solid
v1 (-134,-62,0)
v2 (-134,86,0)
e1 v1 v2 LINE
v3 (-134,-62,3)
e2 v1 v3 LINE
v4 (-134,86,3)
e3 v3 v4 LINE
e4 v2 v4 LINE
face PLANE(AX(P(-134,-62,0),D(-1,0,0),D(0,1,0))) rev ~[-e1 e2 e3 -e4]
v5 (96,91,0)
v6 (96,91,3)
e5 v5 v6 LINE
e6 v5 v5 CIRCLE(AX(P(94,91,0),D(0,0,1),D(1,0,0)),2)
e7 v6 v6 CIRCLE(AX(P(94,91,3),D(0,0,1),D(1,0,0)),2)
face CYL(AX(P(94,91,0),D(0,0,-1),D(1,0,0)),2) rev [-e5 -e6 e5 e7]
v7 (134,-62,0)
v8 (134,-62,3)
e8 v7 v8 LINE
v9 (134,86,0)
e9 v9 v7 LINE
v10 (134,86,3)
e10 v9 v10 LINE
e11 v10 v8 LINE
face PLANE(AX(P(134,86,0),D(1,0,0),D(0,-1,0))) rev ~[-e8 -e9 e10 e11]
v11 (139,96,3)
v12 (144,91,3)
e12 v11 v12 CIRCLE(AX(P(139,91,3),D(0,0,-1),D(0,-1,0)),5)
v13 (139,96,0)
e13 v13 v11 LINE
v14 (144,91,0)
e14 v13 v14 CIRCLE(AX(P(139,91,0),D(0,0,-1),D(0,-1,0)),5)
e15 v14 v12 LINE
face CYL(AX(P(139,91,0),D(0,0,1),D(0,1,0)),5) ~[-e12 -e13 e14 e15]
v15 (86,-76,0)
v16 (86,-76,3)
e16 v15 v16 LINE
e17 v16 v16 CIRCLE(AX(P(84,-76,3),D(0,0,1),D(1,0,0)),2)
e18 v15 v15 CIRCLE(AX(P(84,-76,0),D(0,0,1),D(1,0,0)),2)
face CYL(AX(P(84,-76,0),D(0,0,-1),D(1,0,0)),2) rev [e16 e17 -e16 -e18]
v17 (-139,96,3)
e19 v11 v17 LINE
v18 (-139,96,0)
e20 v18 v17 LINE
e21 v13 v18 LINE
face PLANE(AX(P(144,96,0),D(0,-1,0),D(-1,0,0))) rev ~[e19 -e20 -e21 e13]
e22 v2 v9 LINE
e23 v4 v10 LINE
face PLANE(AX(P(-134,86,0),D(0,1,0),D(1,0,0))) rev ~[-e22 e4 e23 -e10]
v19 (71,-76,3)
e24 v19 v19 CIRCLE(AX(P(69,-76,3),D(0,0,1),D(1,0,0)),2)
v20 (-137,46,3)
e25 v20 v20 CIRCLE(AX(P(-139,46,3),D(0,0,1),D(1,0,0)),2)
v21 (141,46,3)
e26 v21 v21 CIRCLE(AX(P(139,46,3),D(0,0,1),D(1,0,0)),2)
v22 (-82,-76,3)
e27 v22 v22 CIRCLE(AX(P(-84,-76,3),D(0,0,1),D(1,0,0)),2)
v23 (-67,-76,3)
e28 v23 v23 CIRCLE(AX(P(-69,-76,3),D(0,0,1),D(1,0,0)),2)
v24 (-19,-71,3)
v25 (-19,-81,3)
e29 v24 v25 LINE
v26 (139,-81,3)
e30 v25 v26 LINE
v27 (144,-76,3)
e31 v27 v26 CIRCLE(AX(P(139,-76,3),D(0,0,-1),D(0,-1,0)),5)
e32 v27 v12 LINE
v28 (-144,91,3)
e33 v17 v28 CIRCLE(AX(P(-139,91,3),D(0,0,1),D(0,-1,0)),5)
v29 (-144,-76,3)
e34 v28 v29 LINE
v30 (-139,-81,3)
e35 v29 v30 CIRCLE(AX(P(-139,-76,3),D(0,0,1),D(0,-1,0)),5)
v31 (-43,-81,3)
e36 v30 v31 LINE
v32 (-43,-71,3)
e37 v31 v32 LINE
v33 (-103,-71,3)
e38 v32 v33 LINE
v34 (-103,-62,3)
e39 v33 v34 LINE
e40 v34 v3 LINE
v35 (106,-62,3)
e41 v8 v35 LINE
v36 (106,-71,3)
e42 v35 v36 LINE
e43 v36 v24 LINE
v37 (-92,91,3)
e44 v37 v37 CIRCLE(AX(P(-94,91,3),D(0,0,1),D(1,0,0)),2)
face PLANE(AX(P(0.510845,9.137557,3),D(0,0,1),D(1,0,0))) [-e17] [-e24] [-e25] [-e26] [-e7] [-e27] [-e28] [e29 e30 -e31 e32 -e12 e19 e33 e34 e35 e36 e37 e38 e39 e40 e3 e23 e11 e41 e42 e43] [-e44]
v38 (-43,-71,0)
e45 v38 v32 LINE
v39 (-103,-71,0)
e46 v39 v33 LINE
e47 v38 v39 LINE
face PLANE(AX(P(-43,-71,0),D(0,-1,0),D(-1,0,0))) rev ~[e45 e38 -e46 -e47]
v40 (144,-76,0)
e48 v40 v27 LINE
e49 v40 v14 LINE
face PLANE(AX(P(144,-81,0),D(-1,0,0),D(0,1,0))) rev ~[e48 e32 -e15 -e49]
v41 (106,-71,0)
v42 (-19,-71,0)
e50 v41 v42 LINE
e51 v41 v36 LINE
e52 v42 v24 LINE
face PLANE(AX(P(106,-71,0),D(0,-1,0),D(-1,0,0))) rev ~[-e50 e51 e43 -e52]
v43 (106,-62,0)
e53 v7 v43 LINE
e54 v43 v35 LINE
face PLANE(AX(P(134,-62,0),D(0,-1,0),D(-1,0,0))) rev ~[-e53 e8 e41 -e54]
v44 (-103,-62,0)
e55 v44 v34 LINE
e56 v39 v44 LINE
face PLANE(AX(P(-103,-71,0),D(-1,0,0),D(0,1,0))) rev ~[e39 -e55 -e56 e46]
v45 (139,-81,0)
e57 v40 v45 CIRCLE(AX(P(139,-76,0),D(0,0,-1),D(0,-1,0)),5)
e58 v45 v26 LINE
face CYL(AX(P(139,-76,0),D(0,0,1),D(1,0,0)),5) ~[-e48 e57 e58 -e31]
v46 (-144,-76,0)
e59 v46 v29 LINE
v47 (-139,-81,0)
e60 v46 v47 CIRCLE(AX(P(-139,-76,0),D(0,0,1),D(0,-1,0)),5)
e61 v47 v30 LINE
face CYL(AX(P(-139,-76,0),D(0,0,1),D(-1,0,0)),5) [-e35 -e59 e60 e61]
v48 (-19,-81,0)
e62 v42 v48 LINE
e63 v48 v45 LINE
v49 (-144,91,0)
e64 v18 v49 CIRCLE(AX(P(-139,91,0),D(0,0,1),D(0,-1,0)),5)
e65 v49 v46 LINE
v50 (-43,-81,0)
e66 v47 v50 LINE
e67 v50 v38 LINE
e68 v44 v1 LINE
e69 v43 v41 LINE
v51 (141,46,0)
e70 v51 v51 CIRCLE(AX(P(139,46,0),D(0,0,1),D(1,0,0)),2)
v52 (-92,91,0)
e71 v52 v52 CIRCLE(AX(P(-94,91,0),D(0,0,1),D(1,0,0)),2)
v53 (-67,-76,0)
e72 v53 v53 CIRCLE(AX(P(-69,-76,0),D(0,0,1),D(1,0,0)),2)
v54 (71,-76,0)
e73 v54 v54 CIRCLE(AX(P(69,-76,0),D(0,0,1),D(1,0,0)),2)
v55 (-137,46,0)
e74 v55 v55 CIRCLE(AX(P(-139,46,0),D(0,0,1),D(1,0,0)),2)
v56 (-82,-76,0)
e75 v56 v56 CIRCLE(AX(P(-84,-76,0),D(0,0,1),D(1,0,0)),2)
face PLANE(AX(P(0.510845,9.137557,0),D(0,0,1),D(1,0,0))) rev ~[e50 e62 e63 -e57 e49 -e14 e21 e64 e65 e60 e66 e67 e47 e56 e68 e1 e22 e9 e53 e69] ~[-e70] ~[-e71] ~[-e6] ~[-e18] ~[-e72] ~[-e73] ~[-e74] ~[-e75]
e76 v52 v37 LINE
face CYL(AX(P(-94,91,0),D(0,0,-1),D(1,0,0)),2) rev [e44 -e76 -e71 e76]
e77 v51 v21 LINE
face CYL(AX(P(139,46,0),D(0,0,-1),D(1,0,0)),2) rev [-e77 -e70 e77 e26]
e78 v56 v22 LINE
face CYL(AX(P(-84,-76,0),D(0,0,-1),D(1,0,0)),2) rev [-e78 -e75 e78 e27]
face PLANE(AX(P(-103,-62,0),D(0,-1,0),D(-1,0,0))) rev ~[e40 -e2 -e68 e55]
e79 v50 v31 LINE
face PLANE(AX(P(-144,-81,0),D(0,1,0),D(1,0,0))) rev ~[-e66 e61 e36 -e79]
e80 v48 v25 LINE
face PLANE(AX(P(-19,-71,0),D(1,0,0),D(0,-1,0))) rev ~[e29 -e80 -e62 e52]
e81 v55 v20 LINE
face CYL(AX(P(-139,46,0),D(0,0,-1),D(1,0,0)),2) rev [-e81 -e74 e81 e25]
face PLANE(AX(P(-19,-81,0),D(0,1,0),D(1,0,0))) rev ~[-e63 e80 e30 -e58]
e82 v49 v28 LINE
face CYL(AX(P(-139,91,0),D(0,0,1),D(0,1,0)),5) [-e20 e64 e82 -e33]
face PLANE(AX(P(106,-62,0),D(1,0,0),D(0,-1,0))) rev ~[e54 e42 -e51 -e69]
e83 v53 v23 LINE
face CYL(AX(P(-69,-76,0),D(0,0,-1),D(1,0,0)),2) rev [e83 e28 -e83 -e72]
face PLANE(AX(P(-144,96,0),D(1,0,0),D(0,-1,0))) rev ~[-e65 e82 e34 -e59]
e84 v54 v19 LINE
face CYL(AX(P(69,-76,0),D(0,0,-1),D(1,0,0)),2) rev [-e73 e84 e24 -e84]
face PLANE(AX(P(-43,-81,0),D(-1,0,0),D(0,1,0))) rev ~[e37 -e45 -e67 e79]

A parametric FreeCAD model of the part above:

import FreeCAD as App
import Part
import Sketcher
from FreeCAD import Vector
Q = App.Units.Quantity


def edges_at(feature, points):
    """Names of the edges that pass closest to the given points."""
    edges = feature.Shape.Edges
    near = lambda p: min(range(len(edges)), key=lambda i: edges[i].distToShape(Part.Vertex(*p))[0])
    return sorted({f"Edge{near(p) + 1}" for p in points})

doc = App.newDocument("Part")
params = doc.addObject("Spreadsheet::Sheet", "Params")
for row, (alias, value) in enumerate([
    ("sketch1_diameter", "4 mm"),
    ("sketch1_width", "288 mm"),
    ("sketch1_width2", "101 mm"),
    ("sketch1_width3", "60 mm"),
    ("sketch1_width4", "31 mm"),
    ("pad1_length", "3 mm"),
    ("fillet_radius", "5 mm"),
], start=1):
    params.set(f"A{row}", alias)
    params.set(f"B{row}", "=" + value)
    params.setAlias(f"B{row}", alias)

body = doc.addObject("PartDesign::Body", "Body")

sketch1 = body.newObject("Sketcher::SketchObject", "Sketch")
sketch1.AttachmentSupport = (doc.getObject("XY_Plane"), [""])
sketch1.MapMode = "FlatFace"
sketch1.addGeometry(Part.LineSegment(Vector(144, 96, 0), Vector(-144, 96, 0)), False)
sketch1.addGeometry(Part.LineSegment(Vector(-144, 96, 0), Vector(-144, -81, 0)), False)
sketch1.addGeometry(Part.LineSegment(Vector(-144, -81, 0), Vector(-43, -81, 0)), False)
sketch1.addGeometry(Part.LineSegment(Vector(-43, -81, 0), Vector(-43, -71, 0)), False)
sketch1.addGeometry(Part.LineSegment(Vector(-43, -71, 0), Vector(-103, -71, 0)), False)
sketch1.addGeometry(Part.LineSegment(Vector(-103, -71, 0), Vector(-103, -62, 0)), False)
sketch1.addGeometry(Part.LineSegment(Vector(-103, -62, 0), Vector(-134, -62, 0)), False)
sketch1.addGeometry(Part.LineSegment(Vector(-134, -62, 0), Vector(-134, 86, 0)), False)
sketch1.addGeometry(Part.LineSegment(Vector(-134, 86, 0), Vector(134, 86, 0)), False)
sketch1.addGeometry(Part.LineSegment(Vector(134, 86, 0), Vector(134, -62, 0)), False)
sketch1.addGeometry(Part.LineSegment(Vector(134, -62, 0), Vector(106, -62, 0)), False)
sketch1.addGeometry(Part.LineSegment(Vector(106, -62, 0), Vector(106, -71, 0)), False)
sketch1.addGeometry(Part.LineSegment(Vector(106, -71, 0), Vector(-19, -71, 0)), False)
sketch1.addGeometry(Part.LineSegment(Vector(-19, -71, 0), Vector(-19, -81, 0)), False)
sketch1.addGeometry(Part.LineSegment(Vector(-19, -81, 0), Vector(144, -81, 0)), False)
sketch1.addGeometry(Part.LineSegment(Vector(144, -81, 0), Vector(144, 96, 0)), False)
sketch1.addGeometry(Part.Circle(Vector(-84, -76, 0), Vector(0, 0, 1), 2), False)
sketch1.addGeometry(Part.Circle(Vector(-69, -76, 0), Vector(0, 0, 1), 2), False)
sketch1.addGeometry(Part.Circle(Vector(69, -76, 0), Vector(0, 0, 1), 2), False)
sketch1.addGeometry(Part.Circle(Vector(84, -76, 0), Vector(0, 0, 1), 2), False)
sketch1.addGeometry(Part.Circle(Vector(-139, 46, 0), Vector(0, 0, 1), 2), False)
sketch1.addGeometry(Part.Circle(Vector(-94, 91, 0), Vector(0, 0, 1), 2), False)
sketch1.addGeometry(Part.Circle(Vector(139, 46, 0), Vector(0, 0, 1), 2), False)
sketch1.addGeometry(Part.Circle(Vector(94, 91, 0), Vector(0, 0, 1), 2), False)
sketch1.addConstraint(Sketcher.Constraint("Coincident", 0, 2, 1, 1))
sketch1.addConstraint(Sketcher.Constraint("Coincident", 1, 2, 2, 1))
sketch1.addConstraint(Sketcher.Constraint("Coincident", 2, 2, 3, 1))
sketch1.addConstraint(Sketcher.Constraint("Coincident", 3, 2, 4, 1))
sketch1.addConstraint(Sketcher.Constraint("Coincident", 4, 2, 5, 1))
sketch1.addConstraint(Sketcher.Constraint("Coincident", 5, 2, 6, 1))
sketch1.addConstraint(Sketcher.Constraint("Coincident", 6, 2, 7, 1))
sketch1.addConstraint(Sketcher.Constraint("Coincident", 7, 2, 8, 1))
sketch1.addConstraint(Sketcher.Constraint("Coincident", 8, 2, 9, 1))
sketch1.addConstraint(Sketcher.Constraint("Coincident", 9, 2, 10, 1))
sketch1.addConstraint(Sketcher.Constraint("Coincident", 10, 2, 11, 1))
sketch1.addConstraint(Sketcher.Constraint("Coincident", 11, 2, 12, 1))
sketch1.addConstraint(Sketcher.Constraint("Coincident", 12, 2, 13, 1))
sketch1.addConstraint(Sketcher.Constraint("Coincident", 13, 2, 14, 1))
sketch1.addConstraint(Sketcher.Constraint("Coincident", 14, 2, 15, 1))
sketch1.addConstraint(Sketcher.Constraint("Coincident", 15, 2, 0, 1))
sketch1.addConstraint(Sketcher.Constraint("Horizontal", 0))
sketch1.addConstraint(Sketcher.Constraint("Vertical", 1))
sketch1.addConstraint(Sketcher.Constraint("Horizontal", 2))
sketch1.addConstraint(Sketcher.Constraint("Vertical", 3))
sketch1.addConstraint(Sketcher.Constraint("Horizontal", 4))
sketch1.addConstraint(Sketcher.Constraint("Vertical", 5))
sketch1.addConstraint(Sketcher.Constraint("Horizontal", 6))
sketch1.addConstraint(Sketcher.Constraint("Vertical", 7))
sketch1.addConstraint(Sketcher.Constraint("Horizontal", 8))
sketch1.addConstraint(Sketcher.Constraint("Vertical", 9))
sketch1.addConstraint(Sketcher.Constraint("Horizontal", 10))
sketch1.addConstraint(Sketcher.Constraint("Vertical", 11))
sketch1.addConstraint(Sketcher.Constraint("Horizontal", 12))
sketch1.addConstraint(Sketcher.Constraint("Vertical", 13))
sketch1.addConstraint(Sketcher.Constraint("Horizontal", 14))
sketch1.addConstraint(Sketcher.Constraint("Vertical", 15))
sketch1.addConstraint(Sketcher.Constraint("Equal", 16, 17))
sketch1.addConstraint(Sketcher.Constraint("Equal", 17, 18))
sketch1.addConstraint(Sketcher.Constraint("Equal", 18, 19))
sketch1.addConstraint(Sketcher.Constraint("Equal", 19, 20))
sketch1.addConstraint(Sketcher.Constraint("Equal", 20, 21))
sketch1.addConstraint(Sketcher.Constraint("Equal", 21, 22))
sketch1.addConstraint(Sketcher.Constraint("Equal", 22, 23))
sketch1.addConstraint(Sketcher.Constraint("Symmetric", 17, 3, 18, 3, -2))
sketch1.addConstraint(Sketcher.Constraint("Symmetric", 16, 3, 19, 3, -2))
sketch1.addConstraint(Sketcher.Constraint("Symmetric", 20, 3, 22, 3, -2))
sketch1.addConstraint(Sketcher.Constraint("Symmetric", 21, 3, 23, 3, -2))
sketch1.addConstraint(Sketcher.Constraint("Symmetric", 6, 2, 9, 2, -2))
sketch1.addConstraint(Sketcher.Constraint("Symmetric", 1, 2, 14, 2, -2))
sketch1.addConstraint(Sketcher.Constraint("Horizontal", 16, 3, 17, 3))
sketch1.addConstraint(Sketcher.Constraint("Horizontal", 4, 2, 11, 2))
sketch1.addConstraint(Sketcher.Constraint("Diameter", 16, Q("4 mm")))
sketch1.addConstraint(Sketcher.Constraint("DistanceX", 0, 2, 0, 1, Q("288 mm")))
sketch1.addConstraint(Sketcher.Constraint("DistanceX", 2, 1, 2, 2, Q("101 mm")))
sketch1.addConstraint(Sketcher.Constraint("DistanceX", 4, 2, 4, 1, Q("60 mm")))
sketch1.addConstraint(Sketcher.Constraint("DistanceX", 6, 2, 6, 1, Q("31 mm")))
sketch1.addConstraint(Sketcher.Constraint("DistanceX", 10, 2, 10, 1, Q("28 mm")))
sketch1.addConstraint(Sketcher.Constraint("DistanceX", 12, 2, 12, 1, Q("125 mm")))
sketch1.addConstraint(Sketcher.Constraint("DistanceY", 1, 2, 1, 1, Q("177 mm")))
sketch1.addConstraint(Sketcher.Constraint("DistanceY", 3, 1, 3, 2, Q("10 mm")))
sketch1.addConstraint(Sketcher.Constraint("DistanceY", 5, 1, 5, 2, Q("9 mm")))
sketch1.addConstraint(Sketcher.Constraint("DistanceY", 7, 1, 7, 2, Q("148 mm")))
sketch1.addConstraint(Sketcher.Constraint("DistanceX", 16, 3, -1, 1, Q("84 mm")))
sketch1.addConstraint(Sketcher.Constraint("DistanceY", 16, 3, -1, 1, Q("76 mm")))
sketch1.addConstraint(Sketcher.Constraint("DistanceX", 17, 3, -1, 1, Q("69 mm")))
sketch1.addConstraint(Sketcher.Constraint("DistanceX", 20, 3, -1, 1, Q("139 mm")))
sketch1.addConstraint(Sketcher.Constraint("DistanceY", -1, 1, 20, 3, Q("46 mm")))
sketch1.addConstraint(Sketcher.Constraint("DistanceX", 21, 3, -1, 1, Q("94 mm")))
sketch1.addConstraint(Sketcher.Constraint("DistanceY", -1, 1, 21, 3, Q("91 mm")))
sketch1.addConstraint(Sketcher.Constraint("DistanceY", -1, 1, 0, 2, Q("96 mm")))
sketch1.setExpression("Constraints[47]", "Params.sketch1_diameter")
sketch1.setExpression("Constraints[48]", "Params.sketch1_width")
sketch1.setExpression("Constraints[49]", "Params.sketch1_width2")
sketch1.setExpression("Constraints[50]", "Params.sketch1_width3")
sketch1.setExpression("Constraints[51]", "Params.sketch1_width4")
pad1 = body.newObject("PartDesign::Pad", "Pad")
pad1.Profile = sketch1
pad1.setExpression("Length", "Params.pad1_length")
doc.recompute()

fillet = body.newObject("PartDesign::Fillet", "Fillet")
fillet.Base = (pad1, edges_at(pad1, [
    (-144, -81, 1.5),
    (-144, 96, 1.5),
    (144, 96, 1.5),
    (144, -81, 1.5),
]))
fillet.setExpression("Radius", "Params.fillet_radius")

doc.recompute()
